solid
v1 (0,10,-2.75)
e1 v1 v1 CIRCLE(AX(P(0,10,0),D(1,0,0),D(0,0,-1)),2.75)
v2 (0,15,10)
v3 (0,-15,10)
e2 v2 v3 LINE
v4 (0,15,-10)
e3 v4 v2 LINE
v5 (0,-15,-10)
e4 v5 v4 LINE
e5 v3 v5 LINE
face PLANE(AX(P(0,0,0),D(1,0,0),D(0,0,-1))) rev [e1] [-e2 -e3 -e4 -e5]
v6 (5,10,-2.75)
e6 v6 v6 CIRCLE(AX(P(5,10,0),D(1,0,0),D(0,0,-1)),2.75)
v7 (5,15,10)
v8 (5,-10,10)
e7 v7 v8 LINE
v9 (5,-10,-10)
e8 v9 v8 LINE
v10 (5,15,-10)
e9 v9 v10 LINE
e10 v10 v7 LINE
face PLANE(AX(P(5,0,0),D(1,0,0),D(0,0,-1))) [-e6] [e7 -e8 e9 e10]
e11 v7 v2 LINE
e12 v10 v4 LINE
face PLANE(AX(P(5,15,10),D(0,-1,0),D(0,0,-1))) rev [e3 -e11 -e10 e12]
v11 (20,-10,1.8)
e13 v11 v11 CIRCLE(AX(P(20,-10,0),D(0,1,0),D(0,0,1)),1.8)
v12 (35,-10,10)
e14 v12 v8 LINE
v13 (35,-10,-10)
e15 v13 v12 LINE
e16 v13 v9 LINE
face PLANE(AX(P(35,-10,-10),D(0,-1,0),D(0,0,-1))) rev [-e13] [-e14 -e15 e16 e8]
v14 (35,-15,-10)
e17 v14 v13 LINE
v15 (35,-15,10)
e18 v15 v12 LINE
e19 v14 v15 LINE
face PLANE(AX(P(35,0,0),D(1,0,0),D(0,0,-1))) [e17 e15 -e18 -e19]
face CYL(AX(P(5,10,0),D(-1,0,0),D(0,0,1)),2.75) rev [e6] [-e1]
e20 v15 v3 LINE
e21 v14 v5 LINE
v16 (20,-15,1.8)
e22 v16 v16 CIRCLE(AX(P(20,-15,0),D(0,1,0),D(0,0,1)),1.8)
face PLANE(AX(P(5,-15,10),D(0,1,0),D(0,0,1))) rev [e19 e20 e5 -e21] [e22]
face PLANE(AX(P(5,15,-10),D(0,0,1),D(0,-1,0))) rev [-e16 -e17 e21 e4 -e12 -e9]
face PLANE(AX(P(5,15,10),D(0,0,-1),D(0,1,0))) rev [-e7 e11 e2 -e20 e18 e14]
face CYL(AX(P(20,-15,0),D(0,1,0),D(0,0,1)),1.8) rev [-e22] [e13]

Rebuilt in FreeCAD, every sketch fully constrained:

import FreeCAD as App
import Part
import Sketcher

V = App.Vector

doc = App.newDocument("Part")
body = doc.addObject("PartDesign::Body", "Body")

sketch1 = body.newObject("Sketcher::SketchObject", "Sketch")
sketch1.AttachmentSupport = (doc.getObject("YZ_Plane"), [""])
sketch1.MapMode = "FlatFace"
sketch1.addGeometry([
    Part.LineSegment(V(15, 10, 0), V(-15, 10, 0)),
    Part.LineSegment(V(-15, 10, 0), V(-15, -10, 0)),
    Part.LineSegment(V(-15, -10, 0), V(15, -10, 0)),
    Part.LineSegment(V(15, -10, 0), V(15, 10, 0)),
    Part.Circle(V(10, 0, 0), V(0, 0, 1), 2.8),
], False)
sketch1.addConstraint([
    Sketcher.Constraint("Coincident", 0, 2, 1, 1),
    Sketcher.Constraint("Coincident", 1, 2, 2, 1),
    Sketcher.Constraint("Coincident", 2, 2, 3, 1),
    Sketcher.Constraint("Coincident", 3, 2, 0, 1),
    Sketcher.Constraint("Horizontal", 0),
    Sketcher.Constraint("Vertical", 1),
    Sketcher.Constraint("Horizontal", 2),
    Sketcher.Constraint("Vertical", 3),
    Sketcher.Constraint("Symmetric", 0, 2, 2, 2, -1, 1),
    Sketcher.Constraint("PointOnObject", 4, 3, -1),
    Sketcher.Constraint("Diameter", 4, 5.5),
    Sketcher.Constraint("DistanceX", 0, 2, 0, 1, 30.0),
    Sketcher.Constraint("DistanceY", 1, 2, 1, 1, 20.0),
    Sketcher.Constraint("DistanceX", -1, 1, 4, 3, 10.0),
])
pad1 = body.newObject("PartDesign::Pad", "Pad")
pad1.Profile = sketch1
pad1.Length = 5

sketch2 = body.newObject("Sketcher::SketchObject", "Sketch001")
sketch2.AttachmentSupport = (doc.getObject("YZ_Plane"), [""])
sketch2.MapMode = "FlatFace"
sketch2.AttachmentOffset = App.Placement(V(0, 0, 5), App.Rotation())
sketch2.addGeometry([
    Part.LineSegment(V(-10, 10, 0), V(-15, 10, 0)),
    Part.LineSegment(V(-15, 10, 0), V(-15, -10, 0)),
    Part.LineSegment(V(-15, -10, 0), V(-10, -10, 0)),
    Part.LineSegment(V(-10, -10, 0), V(-10, 10, 0)),
], False)
sketch2.addConstraint([
    Sketcher.Constraint("Coincident", 0, 2, 1, 1),
    Sketcher.Constraint("Coincident", 1, 2, 2, 1),
    Sketcher.Constraint("Coincident", 2, 2, 3, 1),
    Sketcher.Constraint("Coincident", 3, 2, 0, 1),
    Sketcher.Constraint("Horizontal", 0),
    Sketcher.Constraint("Vertical", 1),
    Sketcher.Constraint("Horizontal", 2),
    Sketcher.Constraint("Vertical", 3),
    Sketcher.Constraint("DistanceX", 0, 2, 0, 1, 5.0),
    Sketcher.Constraint("DistanceY", 1, 2, 1, 1, 20.0),
    Sketcher.Constraint("DistanceX", 0, 2, -1, 1, 15.0),
    Sketcher.Constraint("DistanceY", -1, 1, 0, 2, 10.0),
])
pad2 = body.newObject("PartDesign::Pad", "Pad001")
pad2.Profile = sketch2
pad2.Length = 30

sketch3 = body.newObject("Sketcher::SketchObject", "Sketch002")
sketch3.AttachmentSupport = (doc.getObject("XZ_Plane"), [""])
sketch3.MapMode = "FlatFace"
sketch3.AttachmentOffset = App.Placement(V(0, 0, 10), App.Rotation())
sketch3.addGeometry(Part.Circle(V(20, 0, 0), V(0, 0, 1), 1.8), False)
sketch3.addConstraint([
    Sketcher.Constraint("PointOnObject", 0, 3, -1),
    Sketcher.Constraint("Diameter", 0, 3.6),
    Sketcher.Constraint("DistanceX", -1, 1, 0, 3, 20.0),
])
pocket1 = body.newObject("PartDesign::Pocket", "Pocket")
pocket1.Profile = sketch3
pocket1.Type = "ThroughAll"
pocket1.Reversed = True

doc.recompute()
